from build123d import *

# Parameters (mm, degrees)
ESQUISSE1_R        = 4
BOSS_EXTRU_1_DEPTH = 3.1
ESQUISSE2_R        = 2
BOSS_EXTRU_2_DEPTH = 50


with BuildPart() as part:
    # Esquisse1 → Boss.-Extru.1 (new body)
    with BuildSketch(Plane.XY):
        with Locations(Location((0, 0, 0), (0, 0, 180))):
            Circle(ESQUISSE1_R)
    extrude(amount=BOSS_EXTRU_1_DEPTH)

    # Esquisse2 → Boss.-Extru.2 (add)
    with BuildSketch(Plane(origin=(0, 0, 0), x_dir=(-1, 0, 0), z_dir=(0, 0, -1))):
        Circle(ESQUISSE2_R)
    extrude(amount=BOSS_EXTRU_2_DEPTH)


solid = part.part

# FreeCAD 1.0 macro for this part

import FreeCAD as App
import Part
import Sketcher

V = App.Vector
Q = App.Units.Quantity

doc = App.newDocument("Part")
body = doc.addObject("PartDesign::Body", "Body")

# Sketch on XY plane
sketch1 = doc.addObject("Sketcher::SketchObject", "Sketch")
body.addObject(sketch1)
sketch1.AttachmentSupport = (doc.XY_Plane, [""])
sketch1.MapMode = "FlatFace"
sketch1.addGeometry(Part.Circle(V(0, 0, 0), V(0, 0, 1), 4), False)
sketch1.addConstraint(Sketcher.Constraint("Coincident", 0, 3, -1, 1))
sketch1.addConstraint(Sketcher.Constraint("Diameter", 0, Q("8 mm")))
pad1 = doc.addObject("PartDesign::Pad", "Pad")
body.addObject(pad1)
pad1.Profile = sketch1
pad1.Length = 3.1

# Sketch on XY plane
sketch2 = doc.addObject("Sketcher::SketchObject", "Sketch001")
body.addObject(sketch2)
sketch2.AttachmentSupport = (doc.XY_Plane, [""])
sketch2.MapMode = "FlatFace"
sketch2.addGeometry(Part.Circle(V(0, 0, 0), V(0, 0, 1), 2), False)
sketch2.addConstraint(Sketcher.Constraint("Coincident", 0, 3, -1, 1))
sketch2.addConstraint(Sketcher.Constraint("Diameter", 0, Q("4 mm")))
pad2 = doc.addObject("PartDesign::Pad", "Pad001")
body.addObject(pad2)
pad2.Profile = sketch2
pad2.Length = 50
pad2.Reversed = True

doc.recompute()
